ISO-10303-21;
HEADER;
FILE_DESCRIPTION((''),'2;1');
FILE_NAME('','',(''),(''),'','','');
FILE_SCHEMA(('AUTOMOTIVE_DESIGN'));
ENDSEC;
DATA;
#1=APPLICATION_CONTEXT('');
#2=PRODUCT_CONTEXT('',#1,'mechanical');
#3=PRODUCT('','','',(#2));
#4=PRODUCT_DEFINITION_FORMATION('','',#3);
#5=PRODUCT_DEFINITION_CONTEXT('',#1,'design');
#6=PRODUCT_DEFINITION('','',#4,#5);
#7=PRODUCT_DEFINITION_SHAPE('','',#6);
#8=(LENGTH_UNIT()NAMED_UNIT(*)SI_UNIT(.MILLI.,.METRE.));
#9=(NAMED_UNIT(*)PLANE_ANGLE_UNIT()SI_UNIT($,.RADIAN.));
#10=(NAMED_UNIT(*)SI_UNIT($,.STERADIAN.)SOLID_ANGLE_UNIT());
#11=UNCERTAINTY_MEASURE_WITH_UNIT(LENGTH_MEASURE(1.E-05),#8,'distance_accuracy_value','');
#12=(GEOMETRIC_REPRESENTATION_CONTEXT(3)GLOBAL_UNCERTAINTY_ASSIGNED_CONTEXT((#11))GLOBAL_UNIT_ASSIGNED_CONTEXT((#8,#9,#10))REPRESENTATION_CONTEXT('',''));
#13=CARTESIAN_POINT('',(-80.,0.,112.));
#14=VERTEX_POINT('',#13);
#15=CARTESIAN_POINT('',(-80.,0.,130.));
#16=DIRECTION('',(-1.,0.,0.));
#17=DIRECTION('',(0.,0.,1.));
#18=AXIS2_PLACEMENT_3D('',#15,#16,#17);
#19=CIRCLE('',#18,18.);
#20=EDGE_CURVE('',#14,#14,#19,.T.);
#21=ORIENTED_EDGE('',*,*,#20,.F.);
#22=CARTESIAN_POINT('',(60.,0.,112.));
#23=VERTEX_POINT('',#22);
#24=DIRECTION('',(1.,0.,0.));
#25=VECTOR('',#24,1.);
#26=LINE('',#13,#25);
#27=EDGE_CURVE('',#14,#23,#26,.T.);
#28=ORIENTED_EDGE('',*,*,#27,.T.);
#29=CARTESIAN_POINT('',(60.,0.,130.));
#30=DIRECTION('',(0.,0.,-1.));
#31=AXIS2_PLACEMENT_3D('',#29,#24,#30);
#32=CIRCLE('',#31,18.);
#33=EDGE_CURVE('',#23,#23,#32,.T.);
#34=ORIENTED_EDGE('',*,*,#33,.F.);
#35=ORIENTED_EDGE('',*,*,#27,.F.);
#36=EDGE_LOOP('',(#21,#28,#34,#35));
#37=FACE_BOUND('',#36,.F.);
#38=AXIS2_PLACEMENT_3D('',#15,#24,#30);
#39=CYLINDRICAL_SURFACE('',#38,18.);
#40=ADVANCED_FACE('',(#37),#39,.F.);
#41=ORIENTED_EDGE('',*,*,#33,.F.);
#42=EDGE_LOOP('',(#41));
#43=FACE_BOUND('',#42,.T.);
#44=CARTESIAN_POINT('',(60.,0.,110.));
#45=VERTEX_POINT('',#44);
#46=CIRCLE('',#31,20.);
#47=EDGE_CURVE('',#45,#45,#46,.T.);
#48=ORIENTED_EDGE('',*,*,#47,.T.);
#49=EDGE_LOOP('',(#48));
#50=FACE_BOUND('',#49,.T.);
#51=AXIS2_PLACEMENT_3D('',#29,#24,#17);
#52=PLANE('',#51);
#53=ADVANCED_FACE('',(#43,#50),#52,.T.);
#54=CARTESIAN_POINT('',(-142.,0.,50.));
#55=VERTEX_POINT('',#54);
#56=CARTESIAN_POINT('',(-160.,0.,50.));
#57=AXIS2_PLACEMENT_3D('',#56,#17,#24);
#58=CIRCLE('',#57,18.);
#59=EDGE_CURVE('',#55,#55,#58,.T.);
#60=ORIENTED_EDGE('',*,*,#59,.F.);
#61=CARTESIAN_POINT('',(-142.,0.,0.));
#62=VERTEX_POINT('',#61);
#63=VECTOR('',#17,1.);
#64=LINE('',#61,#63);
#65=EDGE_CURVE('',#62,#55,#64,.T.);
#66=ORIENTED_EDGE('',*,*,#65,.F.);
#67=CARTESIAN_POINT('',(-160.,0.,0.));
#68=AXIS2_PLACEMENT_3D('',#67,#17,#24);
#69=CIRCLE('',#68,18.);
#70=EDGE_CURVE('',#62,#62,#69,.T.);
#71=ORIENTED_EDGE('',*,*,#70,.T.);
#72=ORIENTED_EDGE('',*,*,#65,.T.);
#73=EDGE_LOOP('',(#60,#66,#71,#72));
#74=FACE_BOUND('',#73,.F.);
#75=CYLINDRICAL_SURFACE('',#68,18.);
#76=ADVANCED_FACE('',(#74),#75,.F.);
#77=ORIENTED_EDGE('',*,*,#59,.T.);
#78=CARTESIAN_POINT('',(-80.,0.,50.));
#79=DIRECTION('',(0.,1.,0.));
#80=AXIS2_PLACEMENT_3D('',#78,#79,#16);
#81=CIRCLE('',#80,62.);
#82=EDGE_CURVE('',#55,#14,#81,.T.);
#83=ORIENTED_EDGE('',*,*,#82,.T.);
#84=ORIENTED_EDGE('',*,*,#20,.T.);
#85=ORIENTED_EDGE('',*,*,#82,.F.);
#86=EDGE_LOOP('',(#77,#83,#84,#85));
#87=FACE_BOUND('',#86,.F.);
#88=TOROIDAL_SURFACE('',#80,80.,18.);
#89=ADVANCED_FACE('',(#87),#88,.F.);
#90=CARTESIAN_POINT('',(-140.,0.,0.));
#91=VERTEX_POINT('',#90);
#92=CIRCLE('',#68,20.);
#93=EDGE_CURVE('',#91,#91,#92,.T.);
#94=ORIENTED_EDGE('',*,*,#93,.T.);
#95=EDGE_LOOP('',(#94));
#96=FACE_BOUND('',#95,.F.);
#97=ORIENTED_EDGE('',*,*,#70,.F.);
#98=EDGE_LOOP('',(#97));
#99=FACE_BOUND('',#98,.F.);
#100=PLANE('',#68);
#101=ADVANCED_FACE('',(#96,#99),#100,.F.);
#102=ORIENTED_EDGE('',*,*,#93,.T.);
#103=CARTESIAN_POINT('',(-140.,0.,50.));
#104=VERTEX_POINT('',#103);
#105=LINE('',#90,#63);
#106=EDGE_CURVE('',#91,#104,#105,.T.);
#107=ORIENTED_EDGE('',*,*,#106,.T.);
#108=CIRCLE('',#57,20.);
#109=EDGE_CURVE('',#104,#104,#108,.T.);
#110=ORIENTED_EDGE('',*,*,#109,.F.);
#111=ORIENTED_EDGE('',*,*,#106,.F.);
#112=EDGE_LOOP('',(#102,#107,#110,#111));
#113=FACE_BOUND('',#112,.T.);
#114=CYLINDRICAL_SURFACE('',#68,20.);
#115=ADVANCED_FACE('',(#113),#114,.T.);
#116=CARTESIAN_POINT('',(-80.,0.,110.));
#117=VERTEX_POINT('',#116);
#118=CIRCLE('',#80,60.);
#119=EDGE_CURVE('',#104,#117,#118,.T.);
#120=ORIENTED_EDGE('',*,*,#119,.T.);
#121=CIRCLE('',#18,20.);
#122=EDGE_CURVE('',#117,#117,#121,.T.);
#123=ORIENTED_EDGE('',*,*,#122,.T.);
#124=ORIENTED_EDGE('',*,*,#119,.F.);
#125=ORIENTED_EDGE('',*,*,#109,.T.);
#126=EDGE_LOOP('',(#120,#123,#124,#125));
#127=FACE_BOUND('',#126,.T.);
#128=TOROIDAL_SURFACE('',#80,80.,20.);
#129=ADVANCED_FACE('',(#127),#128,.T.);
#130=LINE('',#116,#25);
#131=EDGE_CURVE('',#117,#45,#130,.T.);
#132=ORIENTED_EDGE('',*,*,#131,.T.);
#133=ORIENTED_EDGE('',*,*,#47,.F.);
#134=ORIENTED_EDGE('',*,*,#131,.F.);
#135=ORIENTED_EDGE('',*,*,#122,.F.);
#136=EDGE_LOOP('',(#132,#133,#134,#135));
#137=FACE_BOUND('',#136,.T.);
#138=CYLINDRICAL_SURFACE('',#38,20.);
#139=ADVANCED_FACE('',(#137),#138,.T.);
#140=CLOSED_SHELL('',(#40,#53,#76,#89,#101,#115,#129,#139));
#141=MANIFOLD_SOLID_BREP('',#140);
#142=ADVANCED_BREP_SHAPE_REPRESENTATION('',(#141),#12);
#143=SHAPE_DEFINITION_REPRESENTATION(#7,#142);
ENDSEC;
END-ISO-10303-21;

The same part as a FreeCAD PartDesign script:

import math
import FreeCAD as App
import Part
import Sketcher

V = App.Vector
Q = App.Units.Quantity


def faces_at(feature, points):
    """Names of the faces that lie closest to the given points."""
    faces = feature.Shape.Faces
    near = lambda p: min(range(len(faces)), key=lambda i: faces[i].distToShape(Part.Vertex(*p))[0])
    return sorted({f"Face{near(p) + 1}" for p in points})

doc = App.newDocument("Part")
body = doc.addObject("PartDesign::Body", "Body")

# Sketch on XY plane
sketch1 = doc.addObject("Sketcher::SketchObject", "Sketch")
body.addObject(sketch1)
sketch1.AttachmentSupport = (doc.XY_Plane, [""])
sketch1.MapMode = "FlatFace"
sketch1.addGeometry(Part.Circle(V(-160, 0, 0), V(0, 0, 1), 20), False)
sketch1.addConstraint([
    Sketcher.Constraint("PointOnObject", 0, 3, -1),
    Sketcher.Constraint("Diameter", 0, Q("40 mm")),
    Sketcher.Constraint("DistanceX", 0, 3, -1, 1, Q("160 mm")),
])

# Sketch on XZ plane
sketch2 = doc.addObject("Sketcher::SketchObject", "Sketch001")
body.addObject(sketch2)
sketch2.AttachmentSupport = (doc.XZ_Plane, [""])
sketch2.MapMode = "FlatFace"
sketch2.addGeometry([
    Part.LineSegment(V(-160, 0, 0), V(-160, 50, 0)),
    Part.ArcOfCircle(Part.Circle(V(-80, 50, 0), V(0, 0, 1), 80), math.radians(90), math.radians(180)),
    Part.LineSegment(V(-80, 130, 0), V(60, 130, 0)),
], False)
sketch2.addConstraint([
    Sketcher.Constraint("Tangent", 0, 2, 1, 2),
    Sketcher.Constraint("Tangent", 1, 1, 2, 1),
    Sketcher.Constraint("Vertical", 0),
    Sketcher.Constraint("Horizontal", 2),
    Sketcher.Constraint("PointOnObject", 0, 1, -1),
    Sketcher.Constraint("Radius", 1, Q("80 mm")),
    Sketcher.Constraint("DistanceX", 2, 1, 2, 2, Q("140 mm")),
    Sketcher.Constraint("DistanceY", 0, 1, 0, 2, Q("50 mm")),
    Sketcher.Constraint("DistanceX", 1, 3, -1, 1, Q("80 mm")),
])
doc.recompute()

additivepipe = doc.addObject("PartDesign::AdditivePipe", "AdditivePipe")
body.addObject(additivepipe)
additivepipe.Profile = sketch1
additivepipe.Spine = (sketch2, ["Edge1", "Edge2", "Edge3"])
doc.recompute()

thickness = doc.addObject("PartDesign::Thickness", "Thickness")
body.addObject(thickness)
thickness.Base = (additivepipe, faces_at(additivepipe, [(-160, 0, 0), (60, 0, 130)]))
thickness.Value = 2
thickness.Reversed = True
thickness.Join = "Arc"

doc.recompute()
